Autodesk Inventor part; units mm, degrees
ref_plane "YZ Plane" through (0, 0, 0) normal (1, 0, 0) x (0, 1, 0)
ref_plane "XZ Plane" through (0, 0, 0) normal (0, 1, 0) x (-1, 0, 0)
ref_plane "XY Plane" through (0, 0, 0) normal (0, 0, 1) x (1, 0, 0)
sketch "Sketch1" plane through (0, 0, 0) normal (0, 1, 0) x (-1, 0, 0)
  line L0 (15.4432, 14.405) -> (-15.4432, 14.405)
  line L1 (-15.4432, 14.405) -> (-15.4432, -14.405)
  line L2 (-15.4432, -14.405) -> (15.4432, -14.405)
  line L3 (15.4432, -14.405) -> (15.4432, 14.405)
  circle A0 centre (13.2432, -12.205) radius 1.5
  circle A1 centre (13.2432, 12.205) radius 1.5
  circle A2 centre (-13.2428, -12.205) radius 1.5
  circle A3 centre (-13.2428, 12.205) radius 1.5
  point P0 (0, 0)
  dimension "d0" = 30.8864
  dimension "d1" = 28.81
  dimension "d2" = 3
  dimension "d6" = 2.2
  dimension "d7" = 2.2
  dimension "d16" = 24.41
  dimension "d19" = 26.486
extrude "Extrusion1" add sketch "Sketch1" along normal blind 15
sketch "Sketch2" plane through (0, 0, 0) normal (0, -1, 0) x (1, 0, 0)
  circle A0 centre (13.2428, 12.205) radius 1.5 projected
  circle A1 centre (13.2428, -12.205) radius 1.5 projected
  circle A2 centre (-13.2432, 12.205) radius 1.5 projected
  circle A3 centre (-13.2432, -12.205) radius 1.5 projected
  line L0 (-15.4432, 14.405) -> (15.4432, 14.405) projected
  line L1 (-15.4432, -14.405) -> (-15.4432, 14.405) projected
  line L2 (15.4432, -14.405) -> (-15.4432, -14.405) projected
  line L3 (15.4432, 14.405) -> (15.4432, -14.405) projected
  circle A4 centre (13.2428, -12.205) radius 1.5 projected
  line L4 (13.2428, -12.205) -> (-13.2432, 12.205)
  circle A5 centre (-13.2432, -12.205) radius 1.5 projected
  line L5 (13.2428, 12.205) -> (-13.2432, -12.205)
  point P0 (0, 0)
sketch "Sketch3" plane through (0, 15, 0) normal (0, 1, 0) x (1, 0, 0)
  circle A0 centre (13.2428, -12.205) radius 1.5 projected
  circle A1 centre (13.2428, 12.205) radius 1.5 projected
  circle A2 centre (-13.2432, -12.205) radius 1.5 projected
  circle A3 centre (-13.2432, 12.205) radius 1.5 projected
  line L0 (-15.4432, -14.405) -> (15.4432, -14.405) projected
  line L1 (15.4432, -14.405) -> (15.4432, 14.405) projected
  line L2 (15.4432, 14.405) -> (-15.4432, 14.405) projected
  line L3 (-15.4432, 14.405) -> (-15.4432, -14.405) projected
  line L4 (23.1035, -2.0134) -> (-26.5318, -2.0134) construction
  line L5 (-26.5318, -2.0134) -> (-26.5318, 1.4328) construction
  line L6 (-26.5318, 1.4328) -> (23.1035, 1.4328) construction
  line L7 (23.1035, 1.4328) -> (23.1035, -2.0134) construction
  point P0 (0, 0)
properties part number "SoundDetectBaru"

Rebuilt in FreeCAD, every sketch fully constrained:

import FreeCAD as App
import Part
import Sketcher

doc = App.newDocument("Part")
body = doc.addObject("PartDesign::Body", "Body")

sketch1 = doc.addObject("Sketcher::SketchObject", "Sketch")
body.addObject(sketch1)
sketch1.AttachmentSupport = (doc.XZ_Plane, [""])
sketch1.MapMode = "FlatFace"
sketch1.addGeometry([
    Part.LineSegment(App.Vector(-15.4, -14.4, 0), App.Vector(-15.4, 14.4, 0)),
    Part.LineSegment(App.Vector(-15.4, 14.4, 0), App.Vector(15.4, 14.4, 0)),
    Part.LineSegment(App.Vector(15.4, 14.4, 0), App.Vector(15.4, -14.4, 0)),
    Part.LineSegment(App.Vector(15.4, -14.4, 0), App.Vector(-15.4, -14.4, 0)),
    Part.Circle(App.Vector(13.2, -12.2, 0), App.Vector(0, 0, 1), 1.5),
    Part.Circle(App.Vector(-13.2, -12.2, 0), App.Vector(0, 0, 1), 1.5),
    Part.Circle(App.Vector(13.2, 12.2, 0), App.Vector(0, 0, 1), 1.5),
    Part.Circle(App.Vector(-13.2, 12.2, 0), App.Vector(0, 0, 1), 1.5),
], False)
sketch1.addConstraint([
    Sketcher.Constraint("Coincident", 0, 2, 1, 1),
    Sketcher.Constraint("Coincident", 1, 2, 2, 1),
    Sketcher.Constraint("Coincident", 2, 2, 3, 1),
    Sketcher.Constraint("Coincident", 3, 2, 0, 1),
    Sketcher.Constraint("Vertical", 0),
    Sketcher.Constraint("Horizontal", 1),
    Sketcher.Constraint("Vertical", 2),
    Sketcher.Constraint("Horizontal", 3),
    Sketcher.Constraint("Equal", 4, 5),
    Sketcher.Constraint("Equal", 5, 6),
    Sketcher.Constraint("Equal", 6, 7),
    Sketcher.Constraint("Symmetric", 5, 3, 6, 3, -1, 1),
    Sketcher.Constraint("Symmetric", 4, 3, 7, 3, -1, 1),
    Sketcher.Constraint("Symmetric", 0, 2, 2, 2, -1, 1),
    Sketcher.Constraint("Symmetric", 4, 3, 5, 3, -2),
    Sketcher.Constraint("Diameter", 4, 3.0),
    Sketcher.Constraint("DistanceY", 0, 1, 0, 2, 28.81),
    Sketcher.Constraint("DistanceX", 0, 2, 7, 3, 2.2),
    Sketcher.Constraint("DistanceY", 7, 3, 0, 2, 2.2),
    Sketcher.Constraint("DistanceX", 1, 1, 1, 2, 30.8864),
])
pad1 = doc.addObject("PartDesign::Pad", "Pad")
body.addObject(pad1)
pad1.Profile = sketch1
pad1.Length = 15
pad1.Reversed = True

doc.recompute()
